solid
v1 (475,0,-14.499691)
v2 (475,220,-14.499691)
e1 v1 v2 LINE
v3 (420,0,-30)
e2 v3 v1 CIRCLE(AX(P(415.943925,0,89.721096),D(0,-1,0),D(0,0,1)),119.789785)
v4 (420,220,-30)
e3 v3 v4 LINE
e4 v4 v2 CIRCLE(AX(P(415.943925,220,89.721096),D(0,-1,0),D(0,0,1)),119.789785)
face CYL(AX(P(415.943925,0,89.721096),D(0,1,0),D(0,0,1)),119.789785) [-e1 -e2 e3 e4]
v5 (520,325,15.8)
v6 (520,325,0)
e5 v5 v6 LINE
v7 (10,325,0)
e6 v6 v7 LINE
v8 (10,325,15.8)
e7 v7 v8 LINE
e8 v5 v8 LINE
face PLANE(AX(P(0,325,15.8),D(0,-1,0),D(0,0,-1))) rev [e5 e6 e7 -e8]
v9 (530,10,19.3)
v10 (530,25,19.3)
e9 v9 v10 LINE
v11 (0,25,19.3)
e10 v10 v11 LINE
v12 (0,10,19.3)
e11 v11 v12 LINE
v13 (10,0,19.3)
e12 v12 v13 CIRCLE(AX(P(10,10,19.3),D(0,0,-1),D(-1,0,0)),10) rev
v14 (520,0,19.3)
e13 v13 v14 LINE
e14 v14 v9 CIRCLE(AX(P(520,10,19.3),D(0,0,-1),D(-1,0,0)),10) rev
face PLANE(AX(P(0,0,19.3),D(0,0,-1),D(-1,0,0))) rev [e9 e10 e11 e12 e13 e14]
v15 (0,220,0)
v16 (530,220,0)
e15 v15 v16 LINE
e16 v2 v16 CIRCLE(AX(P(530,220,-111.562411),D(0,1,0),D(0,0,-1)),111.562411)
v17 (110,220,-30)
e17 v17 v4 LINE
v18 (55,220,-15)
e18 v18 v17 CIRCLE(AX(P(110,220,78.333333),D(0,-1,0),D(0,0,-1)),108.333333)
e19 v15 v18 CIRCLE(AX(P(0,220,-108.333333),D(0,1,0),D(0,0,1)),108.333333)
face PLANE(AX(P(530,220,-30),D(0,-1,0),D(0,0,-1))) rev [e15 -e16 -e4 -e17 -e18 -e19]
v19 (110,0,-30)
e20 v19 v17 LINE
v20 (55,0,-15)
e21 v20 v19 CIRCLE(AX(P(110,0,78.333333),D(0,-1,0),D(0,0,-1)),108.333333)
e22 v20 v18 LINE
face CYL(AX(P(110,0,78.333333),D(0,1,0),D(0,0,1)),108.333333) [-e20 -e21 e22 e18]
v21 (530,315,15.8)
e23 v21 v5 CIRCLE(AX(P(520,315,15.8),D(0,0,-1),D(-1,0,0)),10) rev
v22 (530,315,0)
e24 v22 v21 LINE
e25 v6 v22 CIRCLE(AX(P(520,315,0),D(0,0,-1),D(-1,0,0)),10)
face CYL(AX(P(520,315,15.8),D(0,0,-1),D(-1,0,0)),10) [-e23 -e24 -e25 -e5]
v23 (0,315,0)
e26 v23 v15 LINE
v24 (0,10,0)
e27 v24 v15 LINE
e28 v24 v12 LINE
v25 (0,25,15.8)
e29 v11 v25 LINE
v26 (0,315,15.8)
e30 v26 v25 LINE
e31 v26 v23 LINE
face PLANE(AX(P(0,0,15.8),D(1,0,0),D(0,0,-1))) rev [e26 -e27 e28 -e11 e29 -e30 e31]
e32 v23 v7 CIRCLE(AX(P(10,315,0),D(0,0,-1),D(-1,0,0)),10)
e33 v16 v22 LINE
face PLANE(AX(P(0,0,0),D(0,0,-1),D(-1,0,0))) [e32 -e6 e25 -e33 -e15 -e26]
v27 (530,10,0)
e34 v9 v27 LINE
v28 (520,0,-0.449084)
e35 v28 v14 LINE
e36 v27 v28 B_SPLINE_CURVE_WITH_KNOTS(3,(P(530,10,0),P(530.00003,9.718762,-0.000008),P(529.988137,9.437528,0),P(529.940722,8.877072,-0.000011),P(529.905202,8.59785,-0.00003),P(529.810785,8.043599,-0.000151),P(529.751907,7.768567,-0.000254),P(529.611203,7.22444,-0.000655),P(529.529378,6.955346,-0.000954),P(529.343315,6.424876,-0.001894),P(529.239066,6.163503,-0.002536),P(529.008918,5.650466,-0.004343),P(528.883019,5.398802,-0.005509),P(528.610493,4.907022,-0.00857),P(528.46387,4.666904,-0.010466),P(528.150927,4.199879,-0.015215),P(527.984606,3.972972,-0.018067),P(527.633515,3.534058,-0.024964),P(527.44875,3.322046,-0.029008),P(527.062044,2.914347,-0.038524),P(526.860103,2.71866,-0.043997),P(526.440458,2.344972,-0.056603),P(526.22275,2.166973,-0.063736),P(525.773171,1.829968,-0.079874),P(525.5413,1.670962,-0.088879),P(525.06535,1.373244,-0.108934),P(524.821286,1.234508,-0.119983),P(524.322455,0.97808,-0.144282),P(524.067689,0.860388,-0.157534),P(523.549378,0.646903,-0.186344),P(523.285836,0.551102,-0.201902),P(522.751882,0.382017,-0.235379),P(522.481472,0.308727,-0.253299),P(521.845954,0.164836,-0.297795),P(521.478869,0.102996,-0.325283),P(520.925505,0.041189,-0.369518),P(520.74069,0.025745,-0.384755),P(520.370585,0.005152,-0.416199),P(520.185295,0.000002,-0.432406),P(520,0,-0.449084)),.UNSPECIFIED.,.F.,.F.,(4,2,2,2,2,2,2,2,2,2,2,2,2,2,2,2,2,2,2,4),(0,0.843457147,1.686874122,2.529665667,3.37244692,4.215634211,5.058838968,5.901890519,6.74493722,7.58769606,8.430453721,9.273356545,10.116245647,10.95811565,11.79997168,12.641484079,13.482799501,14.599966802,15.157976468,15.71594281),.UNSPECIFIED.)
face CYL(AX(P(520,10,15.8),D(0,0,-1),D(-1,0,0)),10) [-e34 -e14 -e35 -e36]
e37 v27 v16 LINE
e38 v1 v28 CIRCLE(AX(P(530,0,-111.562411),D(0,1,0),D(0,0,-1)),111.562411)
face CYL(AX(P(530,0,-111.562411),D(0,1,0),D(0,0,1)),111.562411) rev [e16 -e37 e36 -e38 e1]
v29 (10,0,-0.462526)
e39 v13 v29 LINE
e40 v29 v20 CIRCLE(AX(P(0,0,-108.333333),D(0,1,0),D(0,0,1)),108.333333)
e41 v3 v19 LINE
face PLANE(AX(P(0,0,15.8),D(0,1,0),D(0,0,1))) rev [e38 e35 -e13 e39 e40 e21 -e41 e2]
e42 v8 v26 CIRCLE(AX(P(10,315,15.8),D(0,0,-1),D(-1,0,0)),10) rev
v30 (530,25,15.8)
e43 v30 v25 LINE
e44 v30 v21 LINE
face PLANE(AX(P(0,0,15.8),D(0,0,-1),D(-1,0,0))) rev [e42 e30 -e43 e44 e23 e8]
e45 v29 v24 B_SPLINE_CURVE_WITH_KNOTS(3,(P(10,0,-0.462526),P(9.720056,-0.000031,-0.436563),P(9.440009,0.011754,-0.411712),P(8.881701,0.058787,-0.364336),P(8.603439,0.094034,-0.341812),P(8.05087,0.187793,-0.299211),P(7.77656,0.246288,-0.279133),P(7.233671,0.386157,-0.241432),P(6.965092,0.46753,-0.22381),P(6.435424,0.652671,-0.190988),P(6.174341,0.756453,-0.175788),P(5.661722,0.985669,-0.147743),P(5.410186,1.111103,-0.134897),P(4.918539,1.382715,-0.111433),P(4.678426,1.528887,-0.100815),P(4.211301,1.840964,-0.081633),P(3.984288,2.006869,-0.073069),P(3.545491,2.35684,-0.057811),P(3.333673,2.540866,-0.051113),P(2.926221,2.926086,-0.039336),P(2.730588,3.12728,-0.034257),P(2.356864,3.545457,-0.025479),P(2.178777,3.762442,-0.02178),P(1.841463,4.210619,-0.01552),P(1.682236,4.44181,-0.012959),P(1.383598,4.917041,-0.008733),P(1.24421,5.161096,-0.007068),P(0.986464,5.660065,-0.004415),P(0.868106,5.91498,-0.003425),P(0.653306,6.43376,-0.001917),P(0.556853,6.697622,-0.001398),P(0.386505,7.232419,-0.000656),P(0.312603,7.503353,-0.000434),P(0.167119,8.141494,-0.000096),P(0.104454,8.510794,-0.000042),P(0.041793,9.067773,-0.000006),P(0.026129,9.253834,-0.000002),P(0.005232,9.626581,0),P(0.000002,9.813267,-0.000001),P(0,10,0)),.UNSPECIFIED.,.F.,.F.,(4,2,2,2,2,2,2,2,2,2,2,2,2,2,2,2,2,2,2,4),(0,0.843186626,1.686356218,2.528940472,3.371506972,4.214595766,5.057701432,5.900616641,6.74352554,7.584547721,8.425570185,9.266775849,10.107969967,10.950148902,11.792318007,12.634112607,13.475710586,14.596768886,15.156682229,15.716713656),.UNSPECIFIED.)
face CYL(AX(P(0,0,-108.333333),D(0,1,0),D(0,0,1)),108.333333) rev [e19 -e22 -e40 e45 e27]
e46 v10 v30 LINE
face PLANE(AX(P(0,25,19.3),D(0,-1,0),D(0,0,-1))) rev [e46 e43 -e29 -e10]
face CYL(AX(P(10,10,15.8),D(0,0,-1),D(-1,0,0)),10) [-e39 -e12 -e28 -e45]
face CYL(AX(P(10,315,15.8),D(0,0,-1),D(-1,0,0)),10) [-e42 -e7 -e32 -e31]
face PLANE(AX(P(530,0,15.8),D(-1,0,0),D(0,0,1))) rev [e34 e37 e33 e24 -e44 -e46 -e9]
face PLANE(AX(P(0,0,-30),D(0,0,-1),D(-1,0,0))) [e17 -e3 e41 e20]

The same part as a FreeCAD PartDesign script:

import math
import FreeCAD as App
import Part
import Sketcher
from FreeCAD import Vector


def edges_at(feature, points):
    """Names of the edges that pass closest to the given points."""
    edges = feature.Shape.Edges
    near = lambda p: min(range(len(edges)), key=lambda i: edges[i].distToShape(Part.Vertex(*p))[0])
    return sorted({f"Edge{near(p) + 1}" for p in points})


def add_polygon(sketch, points):
    """Adds a closed chain of lines whose ends are joined by coincident constraints."""
    first, n = sketch.GeometryCount, len(points)
    for a, b in zip(points, points[1:] + points[:1]):
        sketch.addGeometry(Part.LineSegment(App.Vector(*a, 0), App.Vector(*b, 0)), False)
    for i in range(n):
        sketch.addConstraint(Sketcher.Constraint("Coincident", first + i, 2, first + (i + 1) % n, 1))

doc = App.newDocument("Part")
params = doc.addObject("Spreadsheet::Sheet", "Params")
for row, (alias, value) in enumerate([
    ("sketch1_width", "530 mm"),
    ("sketch1_height", "325 mm"),
    ("pad1_length", "15.8 mm"),
    ("sketch2_width", "530 mm"),
    ("sketch2_height", "25 mm"),
    ("pad2_length", "3.5 mm"),
    ("sketch3_width", "530 mm"),
    ("sketch3_height", "220 mm"),
    ("pad3_length", "30 mm"),
    ("sketch4_width", "110 mm"),
    ("sketch4_height", "30 mm"),
    ("sketch5_width", "110 mm"),
    ("sketch5_height", "30 mm"),
    ("fillet_radius", "10 mm"),
], start=1):
    params.set(f"A{row}", alias)
    params.set(f"B{row}", "=" + value)
    params.setAlias(f"B{row}", alias)

body = doc.addObject("PartDesign::Body", "Body")

sketch1 = body.newObject("Sketcher::SketchObject", "Sketch")
sketch1.AttachmentSupport = (doc.getObject("XY_Plane"), [""])
sketch1.MapMode = "FlatFace"
add_polygon(sketch1, [(0, 325), (0, 0), (530, 0), (530, 325)])
sketch1.addConstraint(Sketcher.Constraint("Vertical", 0))
sketch1.addConstraint(Sketcher.Constraint("Horizontal", 1))
sketch1.addConstraint(Sketcher.Constraint("Vertical", 2))
sketch1.addConstraint(Sketcher.Constraint("Horizontal", 3))
sketch1.addConstraint(Sketcher.Constraint("Coincident", 0, 2, -1, 1))
sketch1.addConstraint(Sketcher.Constraint("DistanceX", 1, 1, 1, 2, 530.0))
sketch1.addConstraint(Sketcher.Constraint("DistanceY", 0, 2, 0, 1, 325.0))
sketch1.setExpression("Constraints[9]", "Params.sketch1_width")
sketch1.setExpression("Constraints[10]", "Params.sketch1_height")
pad1 = body.newObject("PartDesign::Pad", "Pad")
pad1.Profile = sketch1
pad1.setExpression("Length", "Params.pad1_length")

sketch2 = body.newObject("Sketcher::SketchObject", "Sketch001")
sketch2.AttachmentSupport = (doc.getObject("XY_Plane"), [""])
sketch2.MapMode = "FlatFace"
sketch2.AttachmentOffset = App.Placement(Vector(0, 0, 15.8), App.Rotation())
add_polygon(sketch2, [(0, 25), (0, 0), (530, 0), (530, 25)])
sketch2.addConstraint(Sketcher.Constraint("Vertical", 0))
sketch2.addConstraint(Sketcher.Constraint("Horizontal", 1))
sketch2.addConstraint(Sketcher.Constraint("Vertical", 2))
sketch2.addConstraint(Sketcher.Constraint("Horizontal", 3))
sketch2.addConstraint(Sketcher.Constraint("Coincident", 0, 2, -1, 1))
sketch2.addConstraint(Sketcher.Constraint("DistanceX", 1, 1, 1, 2, 530.0))
sketch2.addConstraint(Sketcher.Constraint("DistanceY", 0, 2, 0, 1, 25.0))
sketch2.setExpression("Constraints[9]", "Params.sketch2_width")
sketch2.setExpression("Constraints[10]", "Params.sketch2_height")
pad2 = body.newObject("PartDesign::Pad", "Pad001")
pad2.Profile = sketch2
pad2.setExpression("Length", "Params.pad2_length")

sketch3 = body.newObject("Sketcher::SketchObject", "Sketch002")
sketch3.AttachmentSupport = (doc.getObject("XY_Plane"), [""])
sketch3.MapMode = "FlatFace"
add_polygon(sketch3, [(530, 220), (530, 0), (0, 0), (0, 220)])
sketch3.addConstraint(Sketcher.Constraint("Vertical", 0))
sketch3.addConstraint(Sketcher.Constraint("Horizontal", 1))
sketch3.addConstraint(Sketcher.Constraint("Vertical", 2))
sketch3.addConstraint(Sketcher.Constraint("Horizontal", 3))
sketch3.addConstraint(Sketcher.Constraint("Coincident", 1, 2, -1, 1))
sketch3.addConstraint(Sketcher.Constraint("DistanceX", 1, 2, 1, 1, 530.0))
sketch3.addConstraint(Sketcher.Constraint("DistanceY", 0, 2, 0, 1, 220.0))
sketch3.setExpression("Constraints[9]", "Params.sketch3_width")
sketch3.setExpression("Constraints[10]", "Params.sketch3_height")
pad3 = body.newObject("PartDesign::Pad", "Pad002")
pad3.Profile = sketch3
pad3.setExpression("Length", "Params.pad3_length")
pad3.Reversed = True

sketch4 = body.newObject("Sketcher::SketchObject", "Sketch003")
sketch4.AttachmentSupport = (doc.getObject("XZ_Plane"), [""])
sketch4.MapMode = "FlatFace"
sketch4.AttachmentOffset = App.Placement(Vector(0, 0, -220), App.Rotation())
sketch4.addGeometry(Part.LineSegment(Vector(530, 0, 0), Vector(530, -30, 0)), False)
sketch4.addGeometry(Part.LineSegment(Vector(530, -30, 0), Vector(420, -30, 0)), False)
sketch4.addGeometry(Part.ArcOfCircle(Part.Circle(Vector(415.943925, 89.721096, 0), Vector(0, 0, 1), 119.789785), math.radians(-88.059597), math.radians(-60.462204)), False)
sketch4.addGeometry(Part.ArcOfCircle(Part.Circle(Vector(530, -111.562411, 0), Vector(0, 0, 1), 111.562411), math.radians(90), math.radians(119.537796)), False)
sketch4.addConstraint(Sketcher.Constraint("Coincident", 0, 2, 1, 1))
sketch4.addConstraint(Sketcher.Constraint("Coincident", 1, 2, 2, 1))
sketch4.addConstraint(Sketcher.Constraint("Tangent", 2, 2, 3, 2))
sketch4.addConstraint(Sketcher.Constraint("Coincident", 3, 1, 0, 1))
sketch4.addConstraint(Sketcher.Constraint("Vertical", 0))
sketch4.addConstraint(Sketcher.Constraint("Horizontal", 1))
sketch4.addConstraint(Sketcher.Constraint("PointOnObject", 3, 1, -1))
sketch4.addConstraint(Sketcher.Constraint("Vertical", 3, 3, 0, 2))
sketch4.addConstraint(Sketcher.Constraint("DistanceX", 1, 2, 1, 1, 110.0))
sketch4.addConstraint(Sketcher.Constraint("DistanceY", 0, 2, 0, 1, 30.0))
sketch4.addConstraint(Sketcher.Constraint("DistanceX", -1, 1, 3, 3, 530.0))
sketch4.addConstraint(Sketcher.Constraint("DistanceX", -1, 1, 2, 2, 475.0))
sketch4.addConstraint(Sketcher.Constraint("Radius", 3, 111.562411))
sketch4.setExpression("Constraints[8]", "Params.sketch4_width")
sketch4.setExpression("Constraints[9]", "Params.sketch4_height")
pocket1 = body.newObject("PartDesign::Pocket", "Pocket")
pocket1.Profile = sketch4
pocket1.Type = "ThroughAll"
pocket1.Reversed = True

sketch5 = body.newObject("Sketcher::SketchObject", "Sketch004")
sketch5.AttachmentSupport = (doc.getObject("XZ_Plane"), [""])
sketch5.MapMode = "FlatFace"
sketch5.AttachmentOffset = App.Placement(Vector(0, 0, -220), App.Rotation())
sketch5.addGeometry(Part.LineSegment(Vector(0, -30, 0), Vector(0, 0, 0)), False)
sketch5.addGeometry(Part.ArcOfCircle(Part.Circle(Vector(0, -108.333333, 0), Vector(0, 0, 1), 108.333333), math.radians(59.489763), math.radians(90)), False)
sketch5.addGeometry(Part.ArcOfCircle(Part.Circle(Vector(110, 78.333333, 0), Vector(0, 0, 1), 108.333333), math.radians(-120.510237), math.radians(-90)), False)
sketch5.addGeometry(Part.LineSegment(Vector(110, -30, 0), Vector(0, -30, 0)), False)
sketch5.addConstraint(Sketcher.Constraint("Coincident", 0, 2, 1, 2))
sketch5.addConstraint(Sketcher.Constraint("Tangent", 1, 1, 2, 1))
sketch5.addConstraint(Sketcher.Constraint("Tangent", 2, 2, 3, 1))
sketch5.addConstraint(Sketcher.Constraint("Coincident", 3, 2, 0, 1))
sketch5.addConstraint(Sketcher.Constraint("Vertical", 0))
sketch5.addConstraint(Sketcher.Constraint("Horizontal", 3))
sketch5.addConstraint(Sketcher.Constraint("Coincident", 0, 2, -1, 1))
sketch5.addConstraint(Sketcher.Constraint("Equal", 1, 2))
sketch5.addConstraint(Sketcher.Constraint("PointOnObject", 1, 3, -2))
sketch5.addConstraint(Sketcher.Constraint("DistanceX", 3, 2, 3, 1, 110.0))
sketch5.addConstraint(Sketcher.Constraint("DistanceY", 0, 1, 0, 2, 30.0))
sketch5.setExpression("Constraints[9]", "Params.sketch5_width")
sketch5.setExpression("Constraints[10]", "Params.sketch5_height")
pocket2 = body.newObject("PartDesign::Pocket", "Pocket001")
pocket2.Profile = sketch5
pocket2.Type = "ThroughAll"
pocket2.Reversed = True
doc.recompute()

fillet = body.newObject("PartDesign::Fillet", "Fillet")
fillet.Base = (pocket2, edges_at(pocket2, [
    (0, 325, 7.9),
    (530, 325, 7.9),
    (530, 0, 9.65),
    (0, 0, 9.65),
]))
fillet.setExpression("Radius", "Params.fillet_radius")

doc.recompute()
